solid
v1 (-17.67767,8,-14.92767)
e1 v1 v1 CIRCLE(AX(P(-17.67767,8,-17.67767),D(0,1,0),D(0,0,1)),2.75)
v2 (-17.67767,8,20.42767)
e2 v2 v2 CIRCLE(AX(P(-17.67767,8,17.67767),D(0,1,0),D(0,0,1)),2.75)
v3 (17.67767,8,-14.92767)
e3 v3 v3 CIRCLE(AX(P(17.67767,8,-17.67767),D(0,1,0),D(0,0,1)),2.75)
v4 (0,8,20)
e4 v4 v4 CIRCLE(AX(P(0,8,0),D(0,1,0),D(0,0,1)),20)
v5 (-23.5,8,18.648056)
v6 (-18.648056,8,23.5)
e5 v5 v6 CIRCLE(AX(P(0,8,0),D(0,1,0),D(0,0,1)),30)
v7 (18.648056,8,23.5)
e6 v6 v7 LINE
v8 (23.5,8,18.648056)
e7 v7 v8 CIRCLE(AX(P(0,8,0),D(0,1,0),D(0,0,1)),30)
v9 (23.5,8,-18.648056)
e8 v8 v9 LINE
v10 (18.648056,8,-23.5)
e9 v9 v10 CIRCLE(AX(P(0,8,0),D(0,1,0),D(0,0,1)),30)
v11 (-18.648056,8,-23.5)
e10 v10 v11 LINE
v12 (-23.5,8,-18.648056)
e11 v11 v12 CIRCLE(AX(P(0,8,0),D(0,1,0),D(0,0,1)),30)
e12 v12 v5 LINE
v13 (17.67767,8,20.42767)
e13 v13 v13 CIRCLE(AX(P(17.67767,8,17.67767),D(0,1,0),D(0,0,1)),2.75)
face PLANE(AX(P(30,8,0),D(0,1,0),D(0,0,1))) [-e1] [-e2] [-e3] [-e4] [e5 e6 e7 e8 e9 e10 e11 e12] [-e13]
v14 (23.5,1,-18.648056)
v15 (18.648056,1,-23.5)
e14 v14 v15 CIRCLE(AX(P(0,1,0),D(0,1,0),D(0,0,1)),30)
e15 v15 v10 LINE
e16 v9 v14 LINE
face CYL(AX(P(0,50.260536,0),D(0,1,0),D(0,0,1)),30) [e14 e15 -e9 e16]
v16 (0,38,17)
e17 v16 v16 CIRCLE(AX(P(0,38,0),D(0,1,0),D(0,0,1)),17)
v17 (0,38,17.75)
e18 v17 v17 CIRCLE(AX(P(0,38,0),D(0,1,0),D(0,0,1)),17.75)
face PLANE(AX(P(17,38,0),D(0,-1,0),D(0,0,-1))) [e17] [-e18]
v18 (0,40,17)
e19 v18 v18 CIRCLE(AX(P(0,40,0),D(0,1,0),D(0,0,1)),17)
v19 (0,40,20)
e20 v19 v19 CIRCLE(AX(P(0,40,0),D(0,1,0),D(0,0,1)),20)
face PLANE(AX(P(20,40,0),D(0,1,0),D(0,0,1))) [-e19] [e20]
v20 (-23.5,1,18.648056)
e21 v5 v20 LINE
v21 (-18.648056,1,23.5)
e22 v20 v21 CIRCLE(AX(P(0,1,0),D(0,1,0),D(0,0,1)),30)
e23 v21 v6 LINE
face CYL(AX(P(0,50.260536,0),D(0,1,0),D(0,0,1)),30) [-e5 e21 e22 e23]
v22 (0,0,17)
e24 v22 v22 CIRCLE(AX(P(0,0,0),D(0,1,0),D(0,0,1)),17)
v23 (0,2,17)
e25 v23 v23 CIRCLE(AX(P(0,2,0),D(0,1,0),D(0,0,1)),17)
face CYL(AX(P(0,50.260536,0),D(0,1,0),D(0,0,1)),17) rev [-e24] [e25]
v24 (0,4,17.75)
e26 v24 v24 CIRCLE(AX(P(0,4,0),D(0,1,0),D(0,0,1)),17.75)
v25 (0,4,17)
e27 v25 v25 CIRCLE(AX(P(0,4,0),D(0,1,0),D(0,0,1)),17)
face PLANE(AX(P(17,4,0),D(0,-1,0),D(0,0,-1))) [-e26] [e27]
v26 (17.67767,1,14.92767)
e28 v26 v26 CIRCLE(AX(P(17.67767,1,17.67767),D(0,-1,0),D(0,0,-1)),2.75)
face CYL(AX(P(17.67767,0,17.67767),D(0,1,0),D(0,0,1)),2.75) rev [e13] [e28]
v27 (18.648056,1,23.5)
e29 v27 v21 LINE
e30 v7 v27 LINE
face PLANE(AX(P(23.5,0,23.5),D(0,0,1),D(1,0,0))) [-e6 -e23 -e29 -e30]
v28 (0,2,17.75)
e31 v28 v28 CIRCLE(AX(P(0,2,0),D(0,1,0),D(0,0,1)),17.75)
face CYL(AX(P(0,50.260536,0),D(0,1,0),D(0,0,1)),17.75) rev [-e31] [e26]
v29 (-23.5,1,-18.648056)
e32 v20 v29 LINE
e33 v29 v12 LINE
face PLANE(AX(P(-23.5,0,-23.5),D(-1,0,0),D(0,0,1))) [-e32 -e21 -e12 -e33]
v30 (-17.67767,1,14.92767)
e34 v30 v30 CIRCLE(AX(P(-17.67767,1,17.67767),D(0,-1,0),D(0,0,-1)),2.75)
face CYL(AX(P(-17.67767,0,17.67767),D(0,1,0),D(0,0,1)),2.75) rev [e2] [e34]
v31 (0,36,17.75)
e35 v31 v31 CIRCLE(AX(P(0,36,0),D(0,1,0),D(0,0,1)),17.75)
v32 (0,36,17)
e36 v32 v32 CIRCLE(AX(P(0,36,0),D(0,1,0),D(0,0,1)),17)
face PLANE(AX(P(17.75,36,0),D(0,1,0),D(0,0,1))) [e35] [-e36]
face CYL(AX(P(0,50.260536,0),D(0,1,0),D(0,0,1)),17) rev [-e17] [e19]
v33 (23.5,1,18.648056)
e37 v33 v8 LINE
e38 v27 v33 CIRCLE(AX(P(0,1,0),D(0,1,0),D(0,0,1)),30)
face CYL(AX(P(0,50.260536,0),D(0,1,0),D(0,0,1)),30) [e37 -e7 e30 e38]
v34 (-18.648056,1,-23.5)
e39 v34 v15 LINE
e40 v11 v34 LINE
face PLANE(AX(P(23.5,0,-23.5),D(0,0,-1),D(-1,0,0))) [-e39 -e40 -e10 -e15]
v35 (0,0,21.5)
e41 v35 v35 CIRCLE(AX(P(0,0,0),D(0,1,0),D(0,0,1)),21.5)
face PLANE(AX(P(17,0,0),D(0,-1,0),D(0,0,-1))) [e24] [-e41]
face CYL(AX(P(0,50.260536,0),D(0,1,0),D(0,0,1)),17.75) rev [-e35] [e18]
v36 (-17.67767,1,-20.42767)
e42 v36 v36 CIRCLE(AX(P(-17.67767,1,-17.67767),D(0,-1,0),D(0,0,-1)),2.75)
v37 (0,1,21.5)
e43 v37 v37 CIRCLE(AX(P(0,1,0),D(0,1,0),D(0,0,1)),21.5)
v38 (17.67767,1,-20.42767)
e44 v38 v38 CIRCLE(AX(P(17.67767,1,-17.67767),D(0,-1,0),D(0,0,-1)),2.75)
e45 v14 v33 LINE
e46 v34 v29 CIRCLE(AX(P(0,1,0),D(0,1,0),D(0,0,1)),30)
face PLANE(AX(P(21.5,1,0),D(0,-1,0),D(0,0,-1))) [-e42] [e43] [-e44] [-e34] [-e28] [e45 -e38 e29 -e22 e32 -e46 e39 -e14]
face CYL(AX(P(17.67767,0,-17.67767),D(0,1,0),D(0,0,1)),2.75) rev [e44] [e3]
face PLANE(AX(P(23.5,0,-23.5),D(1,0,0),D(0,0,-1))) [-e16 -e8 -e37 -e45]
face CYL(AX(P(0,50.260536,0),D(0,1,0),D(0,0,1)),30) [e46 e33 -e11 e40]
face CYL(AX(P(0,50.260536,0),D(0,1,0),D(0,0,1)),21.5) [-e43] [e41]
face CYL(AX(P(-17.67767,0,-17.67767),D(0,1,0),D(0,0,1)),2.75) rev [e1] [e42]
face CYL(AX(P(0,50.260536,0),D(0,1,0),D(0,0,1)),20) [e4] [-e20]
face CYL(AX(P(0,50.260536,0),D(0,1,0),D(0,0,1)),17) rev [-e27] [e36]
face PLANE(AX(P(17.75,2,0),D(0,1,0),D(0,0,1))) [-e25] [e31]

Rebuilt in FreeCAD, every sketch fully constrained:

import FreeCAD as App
import Part
import Sketcher
from FreeCAD import Vector
Q = App.Units.Quantity


def add_polygon(sketch, points):
    """Adds a closed chain of lines whose ends are joined by coincident constraints."""
    first, n = sketch.GeometryCount, len(points)
    for a, b in zip(points, points[1:] + points[:1]):
        sketch.addGeometry(Part.LineSegment(App.Vector(*a, 0), App.Vector(*b, 0)), False)
    for i in range(n):
        sketch.addConstraint(Sketcher.Constraint("Coincident", first + i, 2, first + (i + 1) % n, 1))

doc = App.newDocument("Part")
params = doc.addObject("Spreadsheet::Sheet", "Params")
for row, (alias, value) in enumerate([
    ("sketch1_width", "3 mm"),
    ("sketch1_width2", "10 mm"),
    ("sketch1_height", "2 mm"),
    ("sketch1_height2", "32 mm"),
    ("sketch1_height3", "7 mm"),
    ("revolution_angle", "360 deg"),
    ("sketch2_diameter", "5.5 mm"),
    ("sketch3_width", "47 mm"),
], start=1):
    params.set(f"A{row}", alias)
    params.set(f"B{row}", "=" + value)
    params.setAlias(f"B{row}", alias)

body = doc.addObject("PartDesign::Body", "Body")

sketch1 = doc.addObject("Sketcher::SketchObject", "Sketch")
body.addObject(sketch1)
sketch1.AttachmentSupport = (doc.XY_Plane, [""])
sketch1.MapMode = "FlatFace"
add_polygon(sketch1, [(-21.5, 0), (-17, 0), (-17, 2), (-17.8, 2), (-17.8, 4), (-17, 4), (-17, 36), (-17.8, 36), (-17.8, 38), (-17, 38), (-17, 40), (-20, 40), (-20, 8), (-30, 8), (-30, 1), (-21.5, 1)])
sketch1.addConstraint([
    Sketcher.Constraint("Horizontal", 0),
    Sketcher.Constraint("Vertical", 1),
    Sketcher.Constraint("Horizontal", 2),
    Sketcher.Constraint("Vertical", 3),
    Sketcher.Constraint("Horizontal", 4),
    Sketcher.Constraint("Vertical", 5),
    Sketcher.Constraint("Horizontal", 6),
    Sketcher.Constraint("Vertical", 7),
    Sketcher.Constraint("Horizontal", 8),
    Sketcher.Constraint("Vertical", 9),
    Sketcher.Constraint("Horizontal", 10),
    Sketcher.Constraint("Vertical", 11),
    Sketcher.Constraint("Horizontal", 12),
    Sketcher.Constraint("Vertical", 13),
    Sketcher.Constraint("Horizontal", 14),
    Sketcher.Constraint("Vertical", 15),
    Sketcher.Constraint("PointOnObject", 0, 2, -1),
    Sketcher.Constraint("Vertical", 1, 2, 4, 2),
    Sketcher.Constraint("Vertical", 3, 2, 6, 2),
    Sketcher.Constraint("Vertical", 5, 2, 8, 2),
    Sketcher.Constraint("Equal", 1, 3),
    Sketcher.Constraint("Equal", 3, 7),
    Sketcher.Constraint("Equal", 7, 9),
    Sketcher.Constraint("Equal", 5, 11),
    Sketcher.Constraint("DistanceX", 10, 2, 10, 1, Q("3 mm")),
    Sketcher.Constraint("DistanceX", 12, 2, 12, 1, Q("10 mm")),
    Sketcher.Constraint("DistanceY", 1, 1, 1, 2, Q("2 mm")),
    Sketcher.Constraint("DistanceY", 5, 1, 5, 2, Q("32 mm")),
    Sketcher.Constraint("DistanceY", 13, 2, 13, 1, Q("7 mm")),
    Sketcher.Constraint("DistanceX", 0, 1, 0, 2, Q("4.5 mm")),
    Sketcher.Constraint("DistanceX", 0, 2, -1, 1, Q("17 mm")),
    Sketcher.Constraint("DistanceX", 2, 2, 2, 1, Q("0.75 mm")),
])
sketch1.setExpression("Constraints[40]", "Params.sketch1_width")
sketch1.setExpression("Constraints[41]", "Params.sketch1_width2")
sketch1.setExpression("Constraints[42]", "Params.sketch1_height")
sketch1.setExpression("Constraints[43]", "Params.sketch1_height2")
sketch1.setExpression("Constraints[44]", "Params.sketch1_height3")
revolution = doc.addObject("PartDesign::Revolution", "Revolution")
body.addObject(revolution)
revolution.Profile = sketch1
revolution.ReferenceAxis = (sketch1, ["V_Axis"])
revolution.setExpression("Angle", "Params.revolution_angle")

sketch2 = doc.addObject("Sketcher::SketchObject", "Sketch001")
body.addObject(sketch2)
sketch2.AttachmentSupport = (doc.XZ_Plane, [""])
sketch2.MapMode = "FlatFace"
sketch2.AttachmentOffset = App.Placement(Vector(0, 0, -8), App.Rotation())
sketch2.addGeometry([
    Part.Circle(Vector(-17.7, -17.7, 0), Vector(0, 0, 1), 2.8),
    Part.Circle(Vector(-17.7, 17.7, 0), Vector(0, 0, 1), 2.8),
    Part.Circle(Vector(17.7, -17.7, 0), Vector(0, 0, 1), 2.8),
    Part.Circle(Vector(17.7, 17.7, 0), Vector(0, 0, 1), 2.8),
], False)
sketch2.addConstraint([
    Sketcher.Constraint("Equal", 0, 1),
    Sketcher.Constraint("Equal", 1, 2),
    Sketcher.Constraint("Equal", 2, 3),
    Sketcher.Constraint("Symmetric", 1, 3, 2, 3, -1, 1),
    Sketcher.Constraint("Symmetric", 0, 3, 3, 3, -1, 1),
    Sketcher.Constraint("Symmetric", 0, 3, 2, 3, -2),
    Sketcher.Constraint("Diameter", 0, Q("5.5 mm")),
    Sketcher.Constraint("DistanceX", 0, 3, -1, 1, Q("17.67767 mm")),
    Sketcher.Constraint("DistanceY", 0, 3, -1, 1, Q("17.67767 mm")),
])
sketch2.setExpression("Constraints[6]", "Params.sketch2_diameter")
pocket1 = doc.addObject("PartDesign::Pocket", "Pocket")
body.addObject(pocket1)
pocket1.Profile = sketch2
pocket1.Type = "ThroughAll"
pocket1.Reversed = True

sketch3 = doc.addObject("Sketcher::SketchObject", "Sketch002")
body.addObject(sketch3)
sketch3.AttachmentSupport = (doc.XZ_Plane, [""])
sketch3.MapMode = "FlatFace"
sketch3.AttachmentOffset = App.Placement(Vector(0, 0, -8), App.Rotation())
add_polygon(sketch3, [(-40, -40), (-40, 40), (40, 40), (40, -40)])
add_polygon(sketch3, [(24, 24), (-24, 24), (-24, -24), (24, -24)])
sketch3.addConstraint([
    Sketcher.Constraint("Vertical", 0),
    Sketcher.Constraint("Horizontal", 1),
    Sketcher.Constraint("Vertical", 2),
    Sketcher.Constraint("Horizontal", 3),
    Sketcher.Constraint("Horizontal", 4),
    Sketcher.Constraint("Vertical", 5),
    Sketcher.Constraint("Horizontal", 6),
    Sketcher.Constraint("Vertical", 7),
    Sketcher.Constraint("Symmetric", 0, 2, 2, 2, -1, 1),
    Sketcher.Constraint("Symmetric", 4, 2, 6, 2, -1, 1),
    Sketcher.Constraint("Equal", 3, 0),
    Sketcher.Constraint("Equal", 6, 5),
    Sketcher.Constraint("DistanceX", 4, 2, 4, 1, Q("47 mm")),
    Sketcher.Constraint("DistanceX", 1, 1, 1, 2, Q("80.762 mm")),
])
sketch3.setExpression("Constraints[20]", "Params.sketch3_width")
pocket2 = doc.addObject("PartDesign::Pocket", "Pocket001")
body.addObject(pocket2)
pocket2.Profile = sketch3
pocket2.Type = "ThroughAll"
pocket2.Reversed = True

doc.recompute()
